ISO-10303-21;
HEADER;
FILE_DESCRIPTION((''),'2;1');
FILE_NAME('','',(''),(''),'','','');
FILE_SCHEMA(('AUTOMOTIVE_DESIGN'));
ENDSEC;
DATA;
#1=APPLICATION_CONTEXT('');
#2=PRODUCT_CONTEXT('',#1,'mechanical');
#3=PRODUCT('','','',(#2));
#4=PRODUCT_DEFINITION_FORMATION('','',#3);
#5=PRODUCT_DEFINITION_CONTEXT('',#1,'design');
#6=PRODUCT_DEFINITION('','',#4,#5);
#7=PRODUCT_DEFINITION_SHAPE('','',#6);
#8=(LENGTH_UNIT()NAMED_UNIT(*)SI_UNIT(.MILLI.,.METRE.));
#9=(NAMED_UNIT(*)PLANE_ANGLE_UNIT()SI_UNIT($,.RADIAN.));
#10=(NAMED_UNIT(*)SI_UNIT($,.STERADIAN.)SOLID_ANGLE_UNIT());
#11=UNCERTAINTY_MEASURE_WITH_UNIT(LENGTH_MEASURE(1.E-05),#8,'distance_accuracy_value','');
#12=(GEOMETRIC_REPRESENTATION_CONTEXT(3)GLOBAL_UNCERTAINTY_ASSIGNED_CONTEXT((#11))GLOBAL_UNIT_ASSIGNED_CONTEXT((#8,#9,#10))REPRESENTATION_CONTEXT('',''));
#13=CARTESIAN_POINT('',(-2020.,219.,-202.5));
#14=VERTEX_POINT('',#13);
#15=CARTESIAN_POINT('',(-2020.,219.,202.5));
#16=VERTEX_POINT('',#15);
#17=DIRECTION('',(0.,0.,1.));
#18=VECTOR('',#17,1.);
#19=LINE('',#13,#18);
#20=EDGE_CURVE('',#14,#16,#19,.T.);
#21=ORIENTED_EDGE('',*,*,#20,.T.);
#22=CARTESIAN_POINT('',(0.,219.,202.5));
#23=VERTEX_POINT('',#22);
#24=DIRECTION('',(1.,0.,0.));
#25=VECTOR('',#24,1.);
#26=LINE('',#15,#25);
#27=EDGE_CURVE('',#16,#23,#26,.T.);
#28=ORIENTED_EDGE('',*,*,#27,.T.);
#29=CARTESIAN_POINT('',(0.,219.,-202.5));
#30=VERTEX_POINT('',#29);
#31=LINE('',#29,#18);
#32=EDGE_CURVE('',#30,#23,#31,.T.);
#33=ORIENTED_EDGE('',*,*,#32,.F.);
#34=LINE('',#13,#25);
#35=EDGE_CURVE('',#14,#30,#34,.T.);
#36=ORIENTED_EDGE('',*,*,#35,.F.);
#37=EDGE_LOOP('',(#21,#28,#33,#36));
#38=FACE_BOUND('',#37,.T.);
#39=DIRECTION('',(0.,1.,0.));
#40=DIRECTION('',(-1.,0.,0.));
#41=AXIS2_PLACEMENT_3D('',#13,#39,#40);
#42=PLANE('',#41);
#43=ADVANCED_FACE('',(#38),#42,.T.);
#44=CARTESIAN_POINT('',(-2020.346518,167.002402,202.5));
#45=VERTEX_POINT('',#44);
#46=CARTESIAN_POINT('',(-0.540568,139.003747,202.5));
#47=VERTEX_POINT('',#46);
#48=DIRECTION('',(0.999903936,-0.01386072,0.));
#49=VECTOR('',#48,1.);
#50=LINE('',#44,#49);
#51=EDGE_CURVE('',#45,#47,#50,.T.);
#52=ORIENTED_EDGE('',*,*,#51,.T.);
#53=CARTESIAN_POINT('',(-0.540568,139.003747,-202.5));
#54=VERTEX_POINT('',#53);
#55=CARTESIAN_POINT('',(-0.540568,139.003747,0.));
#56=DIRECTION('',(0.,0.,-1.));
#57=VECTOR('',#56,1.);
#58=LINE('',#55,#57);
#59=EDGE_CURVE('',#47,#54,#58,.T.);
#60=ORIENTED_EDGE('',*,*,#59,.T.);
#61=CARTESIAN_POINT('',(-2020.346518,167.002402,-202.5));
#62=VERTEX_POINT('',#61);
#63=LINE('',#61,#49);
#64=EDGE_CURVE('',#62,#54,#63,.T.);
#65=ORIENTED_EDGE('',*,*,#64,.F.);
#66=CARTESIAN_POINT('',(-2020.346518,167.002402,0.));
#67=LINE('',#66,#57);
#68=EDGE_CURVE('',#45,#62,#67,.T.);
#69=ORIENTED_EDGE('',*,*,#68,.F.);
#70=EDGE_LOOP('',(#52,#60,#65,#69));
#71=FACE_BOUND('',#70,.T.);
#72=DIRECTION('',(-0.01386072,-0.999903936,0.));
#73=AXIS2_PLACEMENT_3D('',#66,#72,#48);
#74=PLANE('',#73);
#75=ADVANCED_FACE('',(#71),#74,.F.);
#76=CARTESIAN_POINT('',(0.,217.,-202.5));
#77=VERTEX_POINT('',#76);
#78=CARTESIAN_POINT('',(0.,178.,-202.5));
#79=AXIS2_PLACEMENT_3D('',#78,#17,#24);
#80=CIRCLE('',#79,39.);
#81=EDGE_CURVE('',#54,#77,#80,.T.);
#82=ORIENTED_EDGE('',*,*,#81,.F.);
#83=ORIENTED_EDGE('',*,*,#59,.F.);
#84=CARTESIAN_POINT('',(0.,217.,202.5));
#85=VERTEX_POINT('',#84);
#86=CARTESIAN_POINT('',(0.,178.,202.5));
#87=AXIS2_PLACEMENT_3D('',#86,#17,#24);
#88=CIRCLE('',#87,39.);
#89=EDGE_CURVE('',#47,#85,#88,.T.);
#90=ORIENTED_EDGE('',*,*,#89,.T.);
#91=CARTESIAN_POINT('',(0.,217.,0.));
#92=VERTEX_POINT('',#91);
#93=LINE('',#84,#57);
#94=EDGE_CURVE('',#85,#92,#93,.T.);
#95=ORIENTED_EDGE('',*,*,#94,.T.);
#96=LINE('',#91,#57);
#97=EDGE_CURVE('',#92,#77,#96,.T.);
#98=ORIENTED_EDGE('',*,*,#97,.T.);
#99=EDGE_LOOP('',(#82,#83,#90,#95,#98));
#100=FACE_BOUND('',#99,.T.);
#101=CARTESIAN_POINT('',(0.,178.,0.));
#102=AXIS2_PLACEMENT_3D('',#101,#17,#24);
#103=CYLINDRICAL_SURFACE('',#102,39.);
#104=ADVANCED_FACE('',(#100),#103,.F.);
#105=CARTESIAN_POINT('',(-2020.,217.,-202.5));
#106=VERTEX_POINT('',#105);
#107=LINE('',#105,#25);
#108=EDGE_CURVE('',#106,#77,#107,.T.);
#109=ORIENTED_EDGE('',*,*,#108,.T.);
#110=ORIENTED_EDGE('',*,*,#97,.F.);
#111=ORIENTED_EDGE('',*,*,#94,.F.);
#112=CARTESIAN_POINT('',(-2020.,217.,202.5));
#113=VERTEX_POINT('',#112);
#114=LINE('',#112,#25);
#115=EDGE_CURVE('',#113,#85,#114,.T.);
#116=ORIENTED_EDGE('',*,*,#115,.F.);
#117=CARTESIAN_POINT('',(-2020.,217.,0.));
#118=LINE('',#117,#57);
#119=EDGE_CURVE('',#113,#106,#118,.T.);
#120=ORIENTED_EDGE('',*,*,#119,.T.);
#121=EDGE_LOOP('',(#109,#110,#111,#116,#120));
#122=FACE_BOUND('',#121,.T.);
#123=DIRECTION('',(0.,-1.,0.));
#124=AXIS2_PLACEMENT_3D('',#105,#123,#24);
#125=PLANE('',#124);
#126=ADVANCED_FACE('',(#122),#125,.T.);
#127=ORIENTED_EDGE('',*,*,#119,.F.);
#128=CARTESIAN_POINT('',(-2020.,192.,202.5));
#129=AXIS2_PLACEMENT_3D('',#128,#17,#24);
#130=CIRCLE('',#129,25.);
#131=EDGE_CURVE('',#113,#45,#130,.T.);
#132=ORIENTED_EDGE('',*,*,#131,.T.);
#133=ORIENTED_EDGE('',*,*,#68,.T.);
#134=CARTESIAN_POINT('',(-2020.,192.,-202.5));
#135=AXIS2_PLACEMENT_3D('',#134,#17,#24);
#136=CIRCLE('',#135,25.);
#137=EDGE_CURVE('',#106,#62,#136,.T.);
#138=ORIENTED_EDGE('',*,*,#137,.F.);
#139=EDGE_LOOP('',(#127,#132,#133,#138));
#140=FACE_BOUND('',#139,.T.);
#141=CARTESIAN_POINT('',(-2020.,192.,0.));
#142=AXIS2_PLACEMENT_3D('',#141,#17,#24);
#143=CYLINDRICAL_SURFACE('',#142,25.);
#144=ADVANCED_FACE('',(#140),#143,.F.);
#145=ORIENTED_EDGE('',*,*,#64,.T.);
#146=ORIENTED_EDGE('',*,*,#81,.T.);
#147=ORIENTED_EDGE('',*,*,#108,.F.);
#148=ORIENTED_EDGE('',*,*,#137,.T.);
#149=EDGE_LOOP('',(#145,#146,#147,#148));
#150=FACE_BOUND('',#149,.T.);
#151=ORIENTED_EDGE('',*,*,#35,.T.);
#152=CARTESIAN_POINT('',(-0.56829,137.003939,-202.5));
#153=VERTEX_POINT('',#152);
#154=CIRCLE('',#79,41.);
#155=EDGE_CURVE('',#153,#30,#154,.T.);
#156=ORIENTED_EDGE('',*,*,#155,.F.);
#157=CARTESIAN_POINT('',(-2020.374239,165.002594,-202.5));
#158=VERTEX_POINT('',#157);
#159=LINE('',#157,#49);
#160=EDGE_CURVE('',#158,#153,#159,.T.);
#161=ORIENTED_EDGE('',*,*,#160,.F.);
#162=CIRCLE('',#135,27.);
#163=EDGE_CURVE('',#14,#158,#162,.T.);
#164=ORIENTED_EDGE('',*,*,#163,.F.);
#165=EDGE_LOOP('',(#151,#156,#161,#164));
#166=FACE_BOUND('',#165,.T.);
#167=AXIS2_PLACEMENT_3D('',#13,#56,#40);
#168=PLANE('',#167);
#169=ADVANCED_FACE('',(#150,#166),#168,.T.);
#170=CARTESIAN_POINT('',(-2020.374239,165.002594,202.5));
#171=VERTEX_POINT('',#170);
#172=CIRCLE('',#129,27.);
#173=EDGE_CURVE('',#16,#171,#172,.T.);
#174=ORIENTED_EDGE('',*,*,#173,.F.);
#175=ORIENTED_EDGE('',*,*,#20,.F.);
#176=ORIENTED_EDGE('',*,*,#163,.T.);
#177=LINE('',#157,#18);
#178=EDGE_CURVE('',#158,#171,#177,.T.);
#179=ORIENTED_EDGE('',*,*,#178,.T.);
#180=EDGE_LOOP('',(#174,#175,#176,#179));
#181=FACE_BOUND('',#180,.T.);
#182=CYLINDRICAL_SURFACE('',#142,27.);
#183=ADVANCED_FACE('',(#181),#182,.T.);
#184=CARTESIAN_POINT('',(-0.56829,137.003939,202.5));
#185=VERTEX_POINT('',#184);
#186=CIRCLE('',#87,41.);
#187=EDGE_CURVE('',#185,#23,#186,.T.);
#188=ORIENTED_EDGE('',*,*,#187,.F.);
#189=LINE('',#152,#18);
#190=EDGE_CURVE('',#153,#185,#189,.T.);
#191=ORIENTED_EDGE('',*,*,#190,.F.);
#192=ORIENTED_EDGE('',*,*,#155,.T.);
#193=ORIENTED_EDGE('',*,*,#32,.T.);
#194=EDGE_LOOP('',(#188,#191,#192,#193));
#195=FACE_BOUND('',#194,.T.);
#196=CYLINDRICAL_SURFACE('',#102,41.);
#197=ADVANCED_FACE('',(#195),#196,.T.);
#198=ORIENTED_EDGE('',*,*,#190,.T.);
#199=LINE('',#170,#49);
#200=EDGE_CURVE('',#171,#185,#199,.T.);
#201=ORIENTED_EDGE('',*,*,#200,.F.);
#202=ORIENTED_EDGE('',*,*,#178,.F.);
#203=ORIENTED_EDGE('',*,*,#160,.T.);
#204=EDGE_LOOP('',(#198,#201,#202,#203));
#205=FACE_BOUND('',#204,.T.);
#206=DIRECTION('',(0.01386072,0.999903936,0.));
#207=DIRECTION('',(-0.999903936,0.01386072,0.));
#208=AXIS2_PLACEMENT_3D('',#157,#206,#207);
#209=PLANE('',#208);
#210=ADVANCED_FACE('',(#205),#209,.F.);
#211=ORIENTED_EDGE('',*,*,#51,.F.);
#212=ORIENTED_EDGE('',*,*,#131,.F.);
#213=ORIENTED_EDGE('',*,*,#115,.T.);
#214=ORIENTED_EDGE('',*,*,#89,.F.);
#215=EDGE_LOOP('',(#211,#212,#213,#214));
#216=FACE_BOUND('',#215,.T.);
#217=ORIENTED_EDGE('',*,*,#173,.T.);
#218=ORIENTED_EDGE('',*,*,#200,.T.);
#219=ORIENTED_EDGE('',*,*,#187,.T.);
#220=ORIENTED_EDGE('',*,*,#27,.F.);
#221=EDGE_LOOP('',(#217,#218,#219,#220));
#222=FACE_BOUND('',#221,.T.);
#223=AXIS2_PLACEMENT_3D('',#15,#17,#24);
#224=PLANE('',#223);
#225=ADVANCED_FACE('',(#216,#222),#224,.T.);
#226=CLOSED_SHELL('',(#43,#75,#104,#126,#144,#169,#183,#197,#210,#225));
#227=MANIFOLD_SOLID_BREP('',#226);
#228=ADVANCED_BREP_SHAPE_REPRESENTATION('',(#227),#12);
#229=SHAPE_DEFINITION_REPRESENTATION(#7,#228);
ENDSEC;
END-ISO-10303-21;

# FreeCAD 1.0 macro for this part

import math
import FreeCAD as App
import Part
import Sketcher
from FreeCAD import Vector


def add_polygon(sketch, points):
    """Adds a closed chain of lines whose ends are joined by coincident constraints."""
    first, n = sketch.GeometryCount, len(points)
    for a, b in zip(points, points[1:] + points[:1]):
        sketch.addGeometry(Part.LineSegment(App.Vector(*a, 0), App.Vector(*b, 0)), False)
    for i in range(n):
        sketch.addConstraint(Sketcher.Constraint("Coincident", first + i, 2, first + (i + 1) % n, 1))

doc = App.newDocument("Part")
body = doc.addObject("PartDesign::Body", "Body")

sketch1 = doc.addObject("Sketcher::SketchObject", "Sketch")
body.addObject(sketch1)
sketch1.AttachmentSupport = (doc.YZ_Plane, [""])
sketch1.MapMode = "FlatFace"
add_polygon(sketch1, [(219, -202.5), (219, 202.5), (217, 202.5), (217, -202.5)])
sketch1.addConstraint([
    Sketcher.Constraint("Vertical", 0),
    Sketcher.Constraint("Horizontal", 1),
    Sketcher.Constraint("Vertical", 2),
    Sketcher.Constraint("Horizontal", 3),
    Sketcher.Constraint("DistanceX", 1, 2, 1, 1, 2.0),
    Sketcher.Constraint("DistanceY", 0, 1, 0, 2, 405.0),
    Sketcher.Constraint("DistanceX", -1, 1, 0, 2, 219.0),
    Sketcher.Constraint("DistanceY", -1, 1, 0, 2, 202.5),
])

sketch2 = doc.addObject("Sketcher::SketchObject", "Sketch001")
body.addObject(sketch2)
sketch2.AttachmentSupport = (doc.XY_Plane, [""])
sketch2.MapMode = "FlatFace"
sketch2.addGeometry([
    Part.LineSegment(Vector(-2020, 217, 0), Vector(0, 217, 0)),
    Part.ArcOfCircle(Part.Circle(Vector(0, 178, 0), Vector(0, 0, 1), 39), math.radians(-91), math.radians(90)),
    Part.LineSegment(Vector(-1, 139, 0), Vector(-2020, 167, 0)),
    Part.ArcOfCircle(Part.Circle(Vector(-2020, 192, 0), Vector(0, 0, 1), 25), math.radians(90), math.radians(269)),
], False)
sketch2.addConstraint([
    Sketcher.Constraint("Tangent", 0, 2, 1, 2),
    Sketcher.Constraint("Tangent", 1, 1, 2, 1),
    Sketcher.Constraint("Tangent", 2, 2, 3, 2),
    Sketcher.Constraint("Tangent", 3, 1, 0, 1),
    Sketcher.Constraint("Horizontal", 0),
    Sketcher.Constraint("PointOnObject", 1, 3, -2),
    Sketcher.Constraint("Radius", 1, 39.0),
    Sketcher.Constraint("Radius", 3, 25.0),
    Sketcher.Constraint("DistanceX", 0, 1, 0, 2, 2020.0),
    Sketcher.Constraint("DistanceY", -1, 1, 1, 3, 178.0),
])
doc.recompute()

additivepipe = doc.addObject("PartDesign::AdditivePipe", "AdditivePipe")
body.addObject(additivepipe)
additivepipe.Profile = sketch1
additivepipe.Spine = (sketch2, ["Edge1", "Edge2", "Edge3", "Edge4"])

doc.recompute()
